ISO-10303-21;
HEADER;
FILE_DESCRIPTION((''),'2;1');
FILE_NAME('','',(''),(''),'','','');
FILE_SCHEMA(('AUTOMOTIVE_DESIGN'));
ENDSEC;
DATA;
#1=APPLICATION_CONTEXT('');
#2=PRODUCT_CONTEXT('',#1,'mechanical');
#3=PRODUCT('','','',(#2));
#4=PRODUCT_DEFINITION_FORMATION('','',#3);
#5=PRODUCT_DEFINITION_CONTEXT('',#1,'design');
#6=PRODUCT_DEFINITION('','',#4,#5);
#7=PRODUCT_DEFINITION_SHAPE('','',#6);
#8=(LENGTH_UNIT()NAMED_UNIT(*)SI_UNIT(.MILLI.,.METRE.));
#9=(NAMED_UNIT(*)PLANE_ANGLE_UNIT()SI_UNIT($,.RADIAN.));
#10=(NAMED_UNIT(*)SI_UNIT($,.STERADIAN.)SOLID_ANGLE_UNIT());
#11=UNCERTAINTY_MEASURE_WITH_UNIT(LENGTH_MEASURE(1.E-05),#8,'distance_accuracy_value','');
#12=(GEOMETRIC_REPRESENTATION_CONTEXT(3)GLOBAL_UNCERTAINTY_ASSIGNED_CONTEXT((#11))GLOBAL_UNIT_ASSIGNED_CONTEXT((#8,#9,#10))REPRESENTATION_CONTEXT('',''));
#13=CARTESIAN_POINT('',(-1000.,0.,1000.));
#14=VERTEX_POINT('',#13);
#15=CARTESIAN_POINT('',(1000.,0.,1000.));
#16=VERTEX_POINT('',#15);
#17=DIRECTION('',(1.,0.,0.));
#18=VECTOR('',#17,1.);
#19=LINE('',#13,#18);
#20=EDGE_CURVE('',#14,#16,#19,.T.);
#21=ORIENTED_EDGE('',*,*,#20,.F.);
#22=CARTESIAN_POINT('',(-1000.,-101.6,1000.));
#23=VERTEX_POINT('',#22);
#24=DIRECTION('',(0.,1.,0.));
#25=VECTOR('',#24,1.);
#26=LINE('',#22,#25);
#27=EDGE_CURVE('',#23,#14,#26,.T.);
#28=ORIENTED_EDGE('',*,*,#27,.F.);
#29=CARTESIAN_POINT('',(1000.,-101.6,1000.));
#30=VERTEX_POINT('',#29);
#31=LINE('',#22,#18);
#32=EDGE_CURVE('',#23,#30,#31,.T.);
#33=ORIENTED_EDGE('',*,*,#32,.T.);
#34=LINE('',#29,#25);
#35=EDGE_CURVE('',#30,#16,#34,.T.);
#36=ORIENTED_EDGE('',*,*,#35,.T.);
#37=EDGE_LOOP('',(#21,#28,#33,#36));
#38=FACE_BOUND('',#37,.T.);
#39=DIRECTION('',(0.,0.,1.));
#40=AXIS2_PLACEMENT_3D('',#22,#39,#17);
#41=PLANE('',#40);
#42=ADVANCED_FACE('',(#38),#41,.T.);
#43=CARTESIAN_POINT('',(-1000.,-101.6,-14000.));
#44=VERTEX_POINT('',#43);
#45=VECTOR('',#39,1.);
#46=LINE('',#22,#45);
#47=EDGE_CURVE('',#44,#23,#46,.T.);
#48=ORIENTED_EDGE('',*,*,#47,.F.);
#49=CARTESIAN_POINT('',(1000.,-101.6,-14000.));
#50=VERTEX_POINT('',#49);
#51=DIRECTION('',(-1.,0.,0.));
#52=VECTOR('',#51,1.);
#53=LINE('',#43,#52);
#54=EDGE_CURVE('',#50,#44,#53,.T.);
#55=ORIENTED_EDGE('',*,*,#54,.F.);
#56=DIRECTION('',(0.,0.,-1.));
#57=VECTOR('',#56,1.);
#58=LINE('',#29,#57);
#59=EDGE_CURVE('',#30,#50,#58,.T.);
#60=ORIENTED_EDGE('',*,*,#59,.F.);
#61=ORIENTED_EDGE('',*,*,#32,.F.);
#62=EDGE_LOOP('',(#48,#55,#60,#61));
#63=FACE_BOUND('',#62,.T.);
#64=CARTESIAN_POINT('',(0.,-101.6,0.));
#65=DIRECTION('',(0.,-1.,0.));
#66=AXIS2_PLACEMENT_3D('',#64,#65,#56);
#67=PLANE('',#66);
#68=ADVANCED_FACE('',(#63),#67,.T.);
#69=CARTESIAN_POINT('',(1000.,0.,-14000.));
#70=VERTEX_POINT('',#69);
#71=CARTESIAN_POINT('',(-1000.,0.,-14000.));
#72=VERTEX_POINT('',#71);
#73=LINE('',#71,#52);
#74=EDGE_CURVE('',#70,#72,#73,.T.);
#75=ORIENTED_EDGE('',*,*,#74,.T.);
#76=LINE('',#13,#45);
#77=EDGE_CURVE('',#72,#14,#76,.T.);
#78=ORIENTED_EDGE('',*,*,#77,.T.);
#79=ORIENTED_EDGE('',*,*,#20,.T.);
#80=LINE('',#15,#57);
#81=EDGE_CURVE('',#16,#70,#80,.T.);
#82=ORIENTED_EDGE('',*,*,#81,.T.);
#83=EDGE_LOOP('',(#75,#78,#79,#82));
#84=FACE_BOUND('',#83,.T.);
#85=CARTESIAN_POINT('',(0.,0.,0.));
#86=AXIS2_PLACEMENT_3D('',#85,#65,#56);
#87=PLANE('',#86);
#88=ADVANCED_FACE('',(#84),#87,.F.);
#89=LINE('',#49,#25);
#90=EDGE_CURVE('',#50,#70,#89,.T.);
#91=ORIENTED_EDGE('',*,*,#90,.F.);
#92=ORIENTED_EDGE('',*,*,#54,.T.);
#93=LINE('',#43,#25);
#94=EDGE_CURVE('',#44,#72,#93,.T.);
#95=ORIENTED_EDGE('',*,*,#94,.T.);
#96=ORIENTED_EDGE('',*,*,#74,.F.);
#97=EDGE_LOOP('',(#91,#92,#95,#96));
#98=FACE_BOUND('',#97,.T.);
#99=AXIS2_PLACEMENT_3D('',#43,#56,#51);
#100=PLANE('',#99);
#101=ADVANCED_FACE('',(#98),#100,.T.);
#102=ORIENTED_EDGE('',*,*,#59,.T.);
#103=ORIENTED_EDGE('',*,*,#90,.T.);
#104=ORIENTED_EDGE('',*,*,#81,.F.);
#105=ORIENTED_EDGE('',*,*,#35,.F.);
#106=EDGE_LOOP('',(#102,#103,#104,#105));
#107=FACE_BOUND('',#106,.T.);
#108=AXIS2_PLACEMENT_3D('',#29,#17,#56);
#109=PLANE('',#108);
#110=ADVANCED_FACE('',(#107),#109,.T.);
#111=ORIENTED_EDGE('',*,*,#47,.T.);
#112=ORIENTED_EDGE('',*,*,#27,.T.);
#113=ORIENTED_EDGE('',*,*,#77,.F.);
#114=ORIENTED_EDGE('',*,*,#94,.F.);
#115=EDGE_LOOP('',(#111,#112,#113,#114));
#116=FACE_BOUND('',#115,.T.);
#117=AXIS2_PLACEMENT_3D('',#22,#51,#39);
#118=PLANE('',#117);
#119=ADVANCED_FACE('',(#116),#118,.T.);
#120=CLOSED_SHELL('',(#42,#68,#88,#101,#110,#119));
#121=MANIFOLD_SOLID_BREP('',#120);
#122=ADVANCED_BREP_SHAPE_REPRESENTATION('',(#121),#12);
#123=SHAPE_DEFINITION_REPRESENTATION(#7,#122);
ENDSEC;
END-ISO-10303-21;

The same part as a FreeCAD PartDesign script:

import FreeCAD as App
import Part
import Sketcher

V = App.Vector


def add_polygon(sketch, points):
    """Adds a closed chain of lines whose ends are joined by coincident constraints."""
    first, n = sketch.GeometryCount, len(points)
    for a, b in zip(points, points[1:] + points[:1]):
        sketch.addGeometry(Part.LineSegment(App.Vector(*a, 0), App.Vector(*b, 0)), False)
    for i in range(n):
        sketch.addConstraint(Sketcher.Constraint("Coincident", first + i, 2, first + (i + 1) % n, 1))

doc = App.newDocument("Part")
body = doc.addObject("PartDesign::Body", "Body")

# Sketch on XZ plane
sketch1 = body.newObject("Sketcher::SketchObject", "Sketch")
sketch1.AttachmentSupport = (doc.getObject("XZ_Plane"), [""])
sketch1.MapMode = "FlatFace"
add_polygon(sketch1, [(-1000, -14000), (-1000, 1000), (1000, 1000), (1000, -14000)])  # lines 0-3
sketch1.addConstraint(Sketcher.Constraint("Vertical", 0))
sketch1.addConstraint(Sketcher.Constraint("Horizontal", 1))
sketch1.addConstraint(Sketcher.Constraint("Vertical", 2))
sketch1.addConstraint(Sketcher.Constraint("Horizontal", 3))
sketch1.addConstraint(Sketcher.Constraint("DistanceX", 1, 1, 1, 2, 2000.0))
sketch1.addConstraint(Sketcher.Constraint("DistanceY", 0, 1, 0, 2, 15000.0))
sketch1.addConstraint(Sketcher.Constraint("DistanceX", 0, 2, -1, 1, 1000.0))
sketch1.addConstraint(Sketcher.Constraint("DistanceY", -1, 1, 0, 2, 1000.0))
pad1 = body.newObject("PartDesign::Pad", "Pad")
pad1.Profile = sketch1
pad1.Length = 101.6

doc.recompute()
